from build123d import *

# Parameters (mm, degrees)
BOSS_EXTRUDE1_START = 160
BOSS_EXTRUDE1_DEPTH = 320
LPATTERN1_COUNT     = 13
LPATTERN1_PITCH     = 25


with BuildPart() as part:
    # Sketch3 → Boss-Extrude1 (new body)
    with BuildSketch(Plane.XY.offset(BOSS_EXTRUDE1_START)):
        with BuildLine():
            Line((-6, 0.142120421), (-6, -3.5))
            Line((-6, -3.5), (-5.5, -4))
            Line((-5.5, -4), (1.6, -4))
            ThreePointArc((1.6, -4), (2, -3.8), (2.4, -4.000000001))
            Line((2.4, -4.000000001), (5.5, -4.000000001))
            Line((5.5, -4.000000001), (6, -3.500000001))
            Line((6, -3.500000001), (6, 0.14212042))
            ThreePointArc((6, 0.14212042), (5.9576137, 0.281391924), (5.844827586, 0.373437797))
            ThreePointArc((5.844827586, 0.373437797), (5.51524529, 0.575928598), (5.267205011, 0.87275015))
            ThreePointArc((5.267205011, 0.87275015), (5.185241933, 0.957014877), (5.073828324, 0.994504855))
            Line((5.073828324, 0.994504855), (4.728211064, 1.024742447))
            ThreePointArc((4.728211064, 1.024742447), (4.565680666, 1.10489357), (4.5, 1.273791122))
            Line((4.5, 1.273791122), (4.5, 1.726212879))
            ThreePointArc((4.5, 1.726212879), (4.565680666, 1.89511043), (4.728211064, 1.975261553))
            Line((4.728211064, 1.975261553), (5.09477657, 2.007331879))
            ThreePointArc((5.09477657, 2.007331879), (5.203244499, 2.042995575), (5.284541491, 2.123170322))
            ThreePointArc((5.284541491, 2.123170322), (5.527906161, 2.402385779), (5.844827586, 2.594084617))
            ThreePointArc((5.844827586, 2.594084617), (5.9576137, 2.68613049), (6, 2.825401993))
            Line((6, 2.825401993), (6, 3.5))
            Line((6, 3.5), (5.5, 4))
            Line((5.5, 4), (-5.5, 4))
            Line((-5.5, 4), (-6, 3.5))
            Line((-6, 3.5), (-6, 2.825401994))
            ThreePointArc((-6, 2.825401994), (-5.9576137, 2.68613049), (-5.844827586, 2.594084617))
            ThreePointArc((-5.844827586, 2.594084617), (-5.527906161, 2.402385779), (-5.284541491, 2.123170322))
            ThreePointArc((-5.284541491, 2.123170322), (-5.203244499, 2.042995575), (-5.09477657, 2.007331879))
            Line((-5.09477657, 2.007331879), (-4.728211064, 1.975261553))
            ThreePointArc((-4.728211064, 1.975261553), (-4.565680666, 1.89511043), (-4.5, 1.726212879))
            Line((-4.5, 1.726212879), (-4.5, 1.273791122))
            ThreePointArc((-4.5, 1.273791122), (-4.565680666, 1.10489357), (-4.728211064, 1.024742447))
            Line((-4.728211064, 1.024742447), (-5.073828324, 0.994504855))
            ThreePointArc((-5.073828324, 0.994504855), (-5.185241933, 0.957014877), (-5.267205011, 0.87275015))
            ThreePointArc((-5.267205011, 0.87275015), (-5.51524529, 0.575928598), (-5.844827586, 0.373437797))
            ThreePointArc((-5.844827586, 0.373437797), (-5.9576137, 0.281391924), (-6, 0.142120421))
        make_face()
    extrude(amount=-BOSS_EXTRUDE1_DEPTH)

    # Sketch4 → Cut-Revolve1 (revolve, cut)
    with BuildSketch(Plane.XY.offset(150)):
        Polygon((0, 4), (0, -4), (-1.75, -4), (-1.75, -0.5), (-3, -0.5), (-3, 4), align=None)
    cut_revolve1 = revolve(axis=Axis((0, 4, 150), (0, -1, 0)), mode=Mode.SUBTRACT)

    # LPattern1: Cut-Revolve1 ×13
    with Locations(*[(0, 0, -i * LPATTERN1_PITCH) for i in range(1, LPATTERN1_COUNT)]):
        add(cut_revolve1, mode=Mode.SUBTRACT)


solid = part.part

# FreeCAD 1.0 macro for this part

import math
import FreeCAD as App
import Part
import Sketcher
Q = App.Units.Quantity

doc = App.newDocument("Part")
params = doc.addObject("Spreadsheet::Sheet", "Params")
for row, (alias, value) in enumerate([
    ("sketch1_radius", "0.5 mm"),
    ("sketch1_radius2", "1.2 mm"),
    ("sketch1_width", "11 mm"),
    ("sketch1_radius3", "0.25 mm"),
    ("sketch1_width2", "7.1 mm"),
    ("pad1_length", "320 mm"),
    ("sketch2_width", "3 mm"),
    ("sketch2_height", "8 mm"),
    ("sketch2_height2", "4.5 mm"),
    ("sketch2_width2", "1.25 mm"),
    ("groove_angle", "360 deg"),
    ("linearpattern_pitch", "25 mm"),
], start=1):
    params.set(f"A{row}", alias)
    params.set(f"B{row}", "=" + value)
    params.setAlias(f"B{row}", alias)

body = doc.addObject("PartDesign::Body", "Body")

sketch1 = body.newObject("Sketcher::SketchObject", "Sketch")
sketch1.AttachmentSupport = (doc.getObject("XY_Plane"), [""])
sketch1.MapMode = "FlatFace"
sketch1.AttachmentOffset = App.Placement(App.Vector(0, 0, 160), App.Rotation())
sketch1.addGeometry([
    Part.LineSegment(App.Vector(-6, 0.14, 0), App.Vector(-6, -3.5, 0)),
    Part.LineSegment(App.Vector(-6, -3.5, 0), App.Vector(-5.5, -4, 0)),
    Part.LineSegment(App.Vector(-5.5, -4, 0), App.Vector(1.6, -4, 0)),
    Part.ArcOfCircle(Part.Circle(App.Vector(2, -4.3, 0), App.Vector(0, 0, 1), 0.5), math.radians(37), math.radians(143)),
    Part.LineSegment(App.Vector(2.4, -4, 0), App.Vector(5.5, -4, 0)),
    Part.LineSegment(App.Vector(5.5, -4, 0), App.Vector(6, -3.5, 0)),
    Part.LineSegment(App.Vector(6, -3.5, 0), App.Vector(6, 0.14, 0)),
    Part.ArcOfCircle(Part.Circle(App.Vector(5.75, 0.14, 0), App.Vector(0, 0, 1), 0.25), math.radians(0), math.radians(68)),
    Part.ArcOfCircle(Part.Circle(App.Vector(6.3, 1.48, 0), App.Vector(0, 0, 1), 1.2), math.radians(-149), math.radians(-112)),
    Part.ArcOfCircle(Part.Circle(App.Vector(5.05, 0.75, 0), App.Vector(0, 0, 1), 0.25), math.radians(31), math.radians(85)),
    Part.LineSegment(App.Vector(5.07, 0.99, 0), App.Vector(4.73, 1.02, 0)),
    Part.ArcOfCircle(Part.Circle(App.Vector(4.75, 1.27, 0), App.Vector(0, 0, 1), 0.25), math.radians(-180), math.radians(-95)),
    Part.LineSegment(App.Vector(4.5, 1.27, 0), App.Vector(4.5, 1.73, 0)),
    Part.ArcOfCircle(Part.Circle(App.Vector(4.75, 1.73, 0), App.Vector(0, 0, 1), 0.25), math.radians(95), math.radians(180)),
    Part.LineSegment(App.Vector(4.73, 1.98, 0), App.Vector(5.09, 2.01, 0)),
    Part.ArcOfCircle(Part.Circle(App.Vector(5.07, 2.26, 0), App.Vector(0, 0, 1), 0.25), math.radians(-85), math.radians(-32)),
    Part.ArcOfCircle(Part.Circle(App.Vector(6.3, 1.48, 0), App.Vector(0, 0, 1), 1.2), math.radians(112), math.radians(148)),
    Part.ArcOfCircle(Part.Circle(App.Vector(5.75, 2.83, 0), App.Vector(0, 0, 1), 0.25), math.radians(-68), math.radians(0)),
    Part.LineSegment(App.Vector(6, 2.83, 0), App.Vector(6, 3.5, 0)),
    Part.LineSegment(App.Vector(6, 3.5, 0), App.Vector(5.5, 4, 0)),
    Part.LineSegment(App.Vector(5.5, 4, 0), App.Vector(-5.5, 4, 0)),
    Part.LineSegment(App.Vector(-5.5, 4, 0), App.Vector(-6, 3.5, 0)),
    Part.LineSegment(App.Vector(-6, 3.5, 0), App.Vector(-6, 2.83, 0)),
    Part.ArcOfCircle(Part.Circle(App.Vector(-5.75, 2.83, 0), App.Vector(0, 0, 1), 0.25), math.radians(180), math.radians(248)),
    Part.ArcOfCircle(Part.Circle(App.Vector(-6.3, 1.48, 0), App.Vector(0, 0, 1), 1.2), math.radians(32), math.radians(68)),
    Part.ArcOfCircle(Part.Circle(App.Vector(-5.07, 2.26, 0), App.Vector(0, 0, 1), 0.25), math.radians(-148), math.radians(-95)),
    Part.LineSegment(App.Vector(-5.09, 2.01, 0), App.Vector(-4.73, 1.98, 0)),
    Part.ArcOfCircle(Part.Circle(App.Vector(-4.75, 1.73, 0), App.Vector(0, 0, 1), 0.25), math.radians(0), math.radians(85)),
    Part.LineSegment(App.Vector(-4.5, 1.73, 0), App.Vector(-4.5, 1.27, 0)),
    Part.ArcOfCircle(Part.Circle(App.Vector(-4.75, 1.27, 0), App.Vector(0, 0, 1), 0.25), math.radians(-85), math.radians(0)),
    Part.LineSegment(App.Vector(-4.73, 1.02, 0), App.Vector(-5.07, 0.99, 0)),
    Part.ArcOfCircle(Part.Circle(App.Vector(-5.05, 0.75, 0), App.Vector(0, 0, 1), 0.25), math.radians(95), math.radians(149)),
    Part.ArcOfCircle(Part.Circle(App.Vector(-6.3, 1.48, 0), App.Vector(0, 0, 1), 1.2), math.radians(-68), math.radians(-31)),
    Part.ArcOfCircle(Part.Circle(App.Vector(-5.75, 0.14, 0), App.Vector(0, 0, 1), 0.25), math.radians(112), math.radians(180)),
], False)
sketch1.addConstraint([
    Sketcher.Constraint("Coincident", 0, 2, 1, 1),
    Sketcher.Constraint("Coincident", 1, 2, 2, 1),
    Sketcher.Constraint("Coincident", 2, 2, 3, 2),
    Sketcher.Constraint("Coincident", 3, 1, 4, 1),
    Sketcher.Constraint("Coincident", 4, 2, 5, 1),
    Sketcher.Constraint("Coincident", 5, 2, 6, 1),
    Sketcher.Constraint("Tangent", 6, 2, 7, 1),
    Sketcher.Constraint("Tangent", 7, 2, 8, 2),
    Sketcher.Constraint("Tangent", 8, 1, 9, 1),
    Sketcher.Constraint("Tangent", 9, 2, 10, 1),
    Sketcher.Constraint("Tangent", 10, 2, 11, 2),
    Sketcher.Constraint("Tangent", 11, 1, 12, 1),
    Sketcher.Constraint("Tangent", 12, 2, 13, 2),
    Sketcher.Constraint("Tangent", 13, 1, 14, 1),
    Sketcher.Constraint("Tangent", 14, 2, 15, 1),
    Sketcher.Constraint("Tangent", 15, 2, 16, 2),
    Sketcher.Constraint("Tangent", 16, 1, 17, 1),
    Sketcher.Constraint("Tangent", 17, 2, 18, 1),
    Sketcher.Constraint("Coincident", 18, 2, 19, 1),
    Sketcher.Constraint("Coincident", 19, 2, 20, 1),
    Sketcher.Constraint("Coincident", 20, 2, 21, 1),
    Sketcher.Constraint("Coincident", 21, 2, 22, 1),
    Sketcher.Constraint("Tangent", 22, 2, 23, 1),
    Sketcher.Constraint("Tangent", 23, 2, 24, 2),
    Sketcher.Constraint("Tangent", 24, 1, 25, 1),
    Sketcher.Constraint("Tangent", 25, 2, 26, 1),
    Sketcher.Constraint("Tangent", 26, 2, 27, 2),
    Sketcher.Constraint("Tangent", 27, 1, 28, 1),
    Sketcher.Constraint("Tangent", 28, 2, 29, 2),
    Sketcher.Constraint("Tangent", 29, 1, 30, 1),
    Sketcher.Constraint("Tangent", 30, 2, 31, 1),
    Sketcher.Constraint("Tangent", 31, 2, 32, 2),
    Sketcher.Constraint("Tangent", 32, 1, 33, 1),
    Sketcher.Constraint("Tangent", 33, 2, 0, 1),
    Sketcher.Constraint("Vertical", 0),
    Sketcher.Constraint("Horizontal", 2),
    Sketcher.Constraint("Horizontal", 4),
    Sketcher.Constraint("Vertical", 6),
    Sketcher.Constraint("Vertical", 12),
    Sketcher.Constraint("Vertical", 18),
    Sketcher.Constraint("Horizontal", 20),
    Sketcher.Constraint("Vertical", 22),
    Sketcher.Constraint("Vertical", 28),
    Sketcher.Constraint("Coincident", 16, 3, 8, 3),
    Sketcher.Constraint("Coincident", 32, 3, 24, 3),
    Sketcher.Constraint("Equal", 7, 9),
    Sketcher.Constraint("Equal", 9, 11),
    Sketcher.Constraint("Equal", 11, 13),
    Sketcher.Constraint("Equal", 13, 15),
    Sketcher.Constraint("Equal", 8, 16),
    Sketcher.Constraint("Equal", 15, 17),
    Sketcher.Constraint("Equal", 17, 23),
    Sketcher.Constraint("Equal", 16, 24),
    Sketcher.Constraint("Equal", 23, 25),
    Sketcher.Constraint("Equal", 25, 27),
    Sketcher.Constraint("Equal", 27, 29),
    Sketcher.Constraint("Equal", 29, 31),
    Sketcher.Constraint("Equal", 24, 32),
    Sketcher.Constraint("Equal", 31, 33),
    Sketcher.Constraint("Symmetric", 0, 2, 18, 2, -1, 1),
    Sketcher.Constraint("Symmetric", 1, 2, 19, 2, -1, 1),
    Sketcher.Constraint("Symmetric", 4, 2, 20, 2, -1, 1),
    Sketcher.Constraint("Symmetric", 5, 2, 21, 2, -1, 1),
    Sketcher.Constraint("Symmetric", 17, 3, 23, 3, -2),
    Sketcher.Constraint("Symmetric", 15, 3, 25, 3, -2),
    Sketcher.Constraint("Symmetric", 13, 3, 27, 3, -2),
    Sketcher.Constraint("Symmetric", 10, 2, 29, 1, -2),
    Sketcher.Constraint("Perpendicular", 1, 5),
    Sketcher.Constraint("Parallel", 10, 26),
    Sketcher.Constraint("Horizontal", 0, 2, 5, 2),
    Sketcher.Constraint("Vertical", 4, 2, 19, 2),
    Sketcher.Constraint("Radius", 3, 0.5),
    Sketcher.Constraint("Radius", 8, 1.2),
    Sketcher.Constraint("DistanceX", 20, 2, 20, 1, 11.0),
    Sketcher.Constraint("Angle", 10, Q("175 deg")),
    Sketcher.Constraint("Radius", 7, 0.25),
    Sketcher.Constraint("DistanceX", 2, 1, 2, 2, 7.1),
    Sketcher.Constraint("DistanceX", 4, 1, 4, 2, 3.1),
    Sketcher.Constraint("DistanceX", 0, 2, -1, 1, 6.0),
    Sketcher.Constraint("DistanceY", 1, 2, -1, 1, 4.0),
    Sketcher.Constraint("DistanceX", 11, 3, 7, 3, 1.0),
    Sketcher.Constraint("DistanceX", -1, 1, 8, 3, 6.3),
    Sketcher.Constraint("DistanceY", 18, 1, 18, 2, 0.674598),
    Sketcher.Constraint("DistanceX", 9, 2, 7, 2, 0.770999),
    Sketcher.Constraint("DistanceY", 12, 1, 12, 2, 0.452422),
])
sketch1.setExpression("Constraints[71]", "Params.sketch1_radius")
sketch1.setExpression("Constraints[72]", "Params.sketch1_radius2")
sketch1.setExpression("Constraints[73]", "Params.sketch1_width")
sketch1.setExpression("Constraints[75]", "Params.sketch1_radius3")
sketch1.setExpression("Constraints[76]", "Params.sketch1_width2")
pad1 = body.newObject("PartDesign::Pad", "Pad")
pad1.Profile = sketch1
pad1.setExpression("Length", "Params.pad1_length")
pad1.Reversed = True

sketch2 = body.newObject("Sketcher::SketchObject", "Sketch001")
sketch2.AttachmentSupport = (doc.getObject("XY_Plane"), [""])
sketch2.MapMode = "FlatFace"
sketch2.AttachmentOffset = App.Placement(App.Vector(0, 0, 150), App.Rotation())
sketch2.addGeometry([
    Part.LineSegment(App.Vector(0, -4, 0), App.Vector(0, 4, 0)),
    Part.LineSegment(App.Vector(0, 4, 0), App.Vector(-3, 4, 0)),
    Part.LineSegment(App.Vector(-3, 4, 0), App.Vector(-3, -0.5, 0)),
    Part.LineSegment(App.Vector(-3, -0.5, 0), App.Vector(-1.8, -0.5, 0)),
    Part.LineSegment(App.Vector(-1.8, -0.5, 0), App.Vector(-1.8, -4, 0)),
    Part.LineSegment(App.Vector(-1.8, -4, 0), App.Vector(0, -4, 0)),
], False)
sketch2.addConstraint([
    Sketcher.Constraint("Coincident", 0, 2, 1, 1),
    Sketcher.Constraint("Coincident", 1, 2, 2, 1),
    Sketcher.Constraint("Coincident", 2, 2, 3, 1),
    Sketcher.Constraint("Coincident", 3, 2, 4, 1),
    Sketcher.Constraint("Coincident", 4, 2, 5, 1),
    Sketcher.Constraint("Coincident", 5, 2, 0, 1),
    Sketcher.Constraint("Vertical", 0),
    Sketcher.Constraint("Horizontal", 1),
    Sketcher.Constraint("Vertical", 2),
    Sketcher.Constraint("Horizontal", 3),
    Sketcher.Constraint("Vertical", 4),
    Sketcher.Constraint("Horizontal", 5),
    Sketcher.Constraint("Symmetric", 0, 2, 5, 2, -1, 1),
    Sketcher.Constraint("DistanceX", 1, 2, 1, 1, 3.0),
    Sketcher.Constraint("DistanceY", 0, 1, 0, 2, 8.0),
    Sketcher.Constraint("DistanceY", 2, 2, 2, 1, 4.5),
    Sketcher.Constraint("DistanceX", 3, 1, 3, 2, 1.25),
])
sketch2.setExpression("Constraints[13]", "Params.sketch2_width")
sketch2.setExpression("Constraints[14]", "Params.sketch2_height")
sketch2.setExpression("Constraints[15]", "Params.sketch2_height2")
sketch2.setExpression("Constraints[16]", "Params.sketch2_width2")
groove = body.newObject("PartDesign::Groove", "Groove")
groove.Profile = sketch2
groove.ReferenceAxis = (sketch2, ["V_Axis"])
groove.setExpression("Angle", "Params.groove_angle")
doc.recompute()

linearpattern = body.newObject("PartDesign::LinearPattern", "LinearPattern")
linearpattern.Originals = [groove]
linearpattern.Direction = (doc.getObject("Z_Axis"), [""])
linearpattern.Mode = "offset"
linearpattern.setExpression("Offset", "Params.linearpattern_pitch")
linearpattern.Occurrences = 13
linearpattern.Reversed = True
body.Tip = linearpattern

doc.recompute()
